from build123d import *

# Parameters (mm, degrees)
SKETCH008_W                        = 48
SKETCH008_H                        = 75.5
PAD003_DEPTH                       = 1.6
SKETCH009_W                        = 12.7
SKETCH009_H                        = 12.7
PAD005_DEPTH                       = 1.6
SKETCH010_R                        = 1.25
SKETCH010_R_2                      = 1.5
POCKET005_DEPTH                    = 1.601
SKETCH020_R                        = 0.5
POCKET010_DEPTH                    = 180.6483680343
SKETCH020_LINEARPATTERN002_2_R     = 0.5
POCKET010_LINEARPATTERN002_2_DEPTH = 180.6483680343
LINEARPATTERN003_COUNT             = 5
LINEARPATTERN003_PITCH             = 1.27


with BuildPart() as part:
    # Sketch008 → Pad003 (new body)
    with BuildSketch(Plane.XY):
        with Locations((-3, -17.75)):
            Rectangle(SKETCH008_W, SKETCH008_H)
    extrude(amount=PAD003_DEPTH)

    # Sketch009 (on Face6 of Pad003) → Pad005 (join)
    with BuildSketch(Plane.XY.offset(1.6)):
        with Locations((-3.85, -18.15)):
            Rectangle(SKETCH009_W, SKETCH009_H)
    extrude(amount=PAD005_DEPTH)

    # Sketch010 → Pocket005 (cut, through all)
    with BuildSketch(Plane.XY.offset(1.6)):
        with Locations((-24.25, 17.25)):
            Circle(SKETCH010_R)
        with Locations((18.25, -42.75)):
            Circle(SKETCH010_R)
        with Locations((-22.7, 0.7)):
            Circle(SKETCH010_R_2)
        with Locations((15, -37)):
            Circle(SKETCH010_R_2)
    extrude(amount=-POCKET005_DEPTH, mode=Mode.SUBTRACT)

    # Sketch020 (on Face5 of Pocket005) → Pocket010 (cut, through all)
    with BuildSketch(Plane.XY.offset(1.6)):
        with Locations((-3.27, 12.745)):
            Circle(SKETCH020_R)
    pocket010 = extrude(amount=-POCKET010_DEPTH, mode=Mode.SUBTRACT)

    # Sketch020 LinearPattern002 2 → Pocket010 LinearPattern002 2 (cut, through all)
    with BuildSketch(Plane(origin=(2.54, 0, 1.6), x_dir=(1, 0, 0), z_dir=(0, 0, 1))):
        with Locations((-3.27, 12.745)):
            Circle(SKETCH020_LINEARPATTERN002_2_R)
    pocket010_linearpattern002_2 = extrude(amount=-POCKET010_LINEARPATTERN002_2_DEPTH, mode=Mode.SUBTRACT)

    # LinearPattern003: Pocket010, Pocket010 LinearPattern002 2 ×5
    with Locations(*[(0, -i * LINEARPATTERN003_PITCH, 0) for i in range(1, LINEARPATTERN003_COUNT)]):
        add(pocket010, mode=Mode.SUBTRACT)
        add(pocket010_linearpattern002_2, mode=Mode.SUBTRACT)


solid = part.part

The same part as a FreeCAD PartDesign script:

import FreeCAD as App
import Part
import Sketcher
from FreeCAD import Vector
Q = App.Units.Quantity

doc = App.newDocument("Part")
body = doc.addObject("PartDesign::Body", "Body")

sketch1 = body.newObject("Sketcher::SketchObject", "Sketch")
sketch1.AttachmentSupport = (doc.getObject("XY_Plane"), [""])
sketch1.MapMode = "FlatFace"
sketch1.addGeometry(Part.LineSegment(Vector(-27, 20, 0), Vector(-27, -56, 0)), False)
sketch1.addGeometry(Part.LineSegment(Vector(-27, -56, 0), Vector(21, -56, 0)), False)
sketch1.addGeometry(Part.LineSegment(Vector(21, -56, 0), Vector(21, 20, 0)), False)
sketch1.addGeometry(Part.LineSegment(Vector(21, 20, 0), Vector(-27, 20, 0)), False)
sketch1.addConstraint(Sketcher.Constraint("Coincident", 0, 2, 1, 1))
sketch1.addConstraint(Sketcher.Constraint("Coincident", 1, 2, 2, 1))
sketch1.addConstraint(Sketcher.Constraint("Coincident", 2, 2, 3, 1))
sketch1.addConstraint(Sketcher.Constraint("Coincident", 3, 2, 0, 1))
sketch1.addConstraint(Sketcher.Constraint("Vertical", 0))
sketch1.addConstraint(Sketcher.Constraint("Horizontal", 1))
sketch1.addConstraint(Sketcher.Constraint("Vertical", 2))
sketch1.addConstraint(Sketcher.Constraint("Horizontal", 3))
sketch1.addConstraint(Sketcher.Constraint("DistanceX", 1, 1, 1, 2, Q("48 mm")))
sketch1.addConstraint(Sketcher.Constraint("DistanceY", 0, 2, 0, 1, Q("75.5 mm")))
sketch1.addConstraint(Sketcher.Constraint("DistanceX", 0, 2, -1, 1, Q("27 mm")))
sketch1.addConstraint(Sketcher.Constraint("DistanceY", -1, 1, 2, 2, Q("20 mm")))
pad1 = body.newObject("PartDesign::Pad", "Pad")
pad1.Profile = sketch1
pad1.Length = 1.6

sketch2 = body.newObject("Sketcher::SketchObject", "Sketch001")
sketch2.AttachmentSupport = (doc.getObject("XY_Plane"), [""])
sketch2.MapMode = "FlatFace"
sketch2.AttachmentOffset = App.Placement(Vector(0, 0, 1.6), App.Rotation())
sketch2.addGeometry(Part.LineSegment(Vector(-10, -12, 0), Vector(-10, -24, 0)), False)
sketch2.addGeometry(Part.LineSegment(Vector(-10, -24, 0), Vector(2, -24, 0)), False)
sketch2.addGeometry(Part.LineSegment(Vector(2, -24, 0), Vector(2, -12, 0)), False)
sketch2.addGeometry(Part.LineSegment(Vector(2, -12, 0), Vector(-10, -12, 0)), False)
sketch2.addConstraint(Sketcher.Constraint("Coincident", 0, 2, 1, 1))
sketch2.addConstraint(Sketcher.Constraint("Coincident", 1, 2, 2, 1))
sketch2.addConstraint(Sketcher.Constraint("Coincident", 2, 2, 3, 1))
sketch2.addConstraint(Sketcher.Constraint("Coincident", 3, 2, 0, 1))
sketch2.addConstraint(Sketcher.Constraint("Vertical", 0))
sketch2.addConstraint(Sketcher.Constraint("Horizontal", 1))
sketch2.addConstraint(Sketcher.Constraint("Vertical", 2))
sketch2.addConstraint(Sketcher.Constraint("Horizontal", 3))
sketch2.addConstraint(Sketcher.Constraint("Equal", 3, 0))
sketch2.addConstraint(Sketcher.Constraint("DistanceX", 1, 1, 1, 2, Q("12.7 mm")))
sketch2.addConstraint(Sketcher.Constraint("DistanceX", 0, 2, -1, 1, Q("10.2 mm")))
sketch2.addConstraint(Sketcher.Constraint("DistanceY", 0, 2, -1, 1, Q("24.5 mm")))
pad2 = body.newObject("PartDesign::Pad", "Pad001")
pad2.Profile = sketch2
pad2.Length = 1.6

sketch3 = body.newObject("Sketcher::SketchObject", "Sketch002")
sketch3.AttachmentSupport = (doc.getObject("XY_Plane"), [""])
sketch3.MapMode = "FlatFace"
sketch3.AttachmentOffset = App.Placement(Vector(0, 0, 1.6), App.Rotation())
sketch3.addGeometry(Part.Circle(Vector(-24.2, 17.2, 0), Vector(0, 0, 1), 1.2), False)
sketch3.addGeometry(Part.Circle(Vector(18.2, -42.8, 0), Vector(0, 0, 1), 1.2), False)
sketch3.addGeometry(Part.Circle(Vector(-22.7, 0.7, 0), Vector(0, 0, 1), 1.5), False)
sketch3.addGeometry(Part.Circle(Vector(15, -37, 0), Vector(0, 0, 1), 1.5), False)
sketch3.addConstraint(Sketcher.Constraint("Equal", 0, 1))
sketch3.addConstraint(Sketcher.Constraint("Equal", 2, 3))
sketch3.addConstraint(Sketcher.Constraint("Diameter", 2, Q("3 mm")))
sketch3.addConstraint(Sketcher.Constraint("Diameter", 0, Q("2.5 mm")))
sketch3.addConstraint(Sketcher.Constraint("DistanceX", -1, 1, 3, 3, Q("15 mm")))
sketch3.addConstraint(Sketcher.Constraint("DistanceY", 3, 3, -1, 1, Q("37 mm")))
sketch3.addConstraint(Sketcher.Constraint("DistanceY", 1, 3, 0, 3, Q("60 mm")))
sketch3.addConstraint(Sketcher.Constraint("DistanceX", 2, 3, -1, 1, Q("22.7 mm")))
sketch3.addConstraint(Sketcher.Constraint("DistanceY", -1, 1, 2, 3, Q("0.7 mm")))
sketch3.addConstraint(Sketcher.Constraint("DistanceX", 0, 3, 1, 3, Q("42.5 mm")))
sketch3.addConstraint(Sketcher.Constraint("DistanceX", 0, 3, -1, 1, Q("24.25 mm")))
sketch3.addConstraint(Sketcher.Constraint("DistanceY", -1, 1, 0, 3, Q("17.25 mm")))
pocket1 = body.newObject("PartDesign::Pocket", "Pocket")
pocket1.Profile = sketch3
pocket1.Type = "ThroughAll"

sketch4 = body.newObject("Sketcher::SketchObject", "Sketch003")
sketch4.AttachmentSupport = (doc.getObject("XY_Plane"), [""])
sketch4.MapMode = "FlatFace"
sketch4.AttachmentOffset = App.Placement(Vector(0, 0, 1.6), App.Rotation())
sketch4.addGeometry(Part.Circle(Vector(-3.3, 12.7, 0), Vector(0, 0, 1), 0.5), False)
sketch4.addConstraint(Sketcher.Constraint("Diameter", 0, Q("1 mm")))
sketch4.addConstraint(Sketcher.Constraint("DistanceX", 0, 3, -1, 1, Q("3.27 mm")))
sketch4.addConstraint(Sketcher.Constraint("DistanceY", -1, 1, 0, 3, Q("12.745 mm")))
pocket2 = body.newObject("PartDesign::Pocket", "Pocket001")
pocket2.Profile = sketch4
pocket2.Type = "ThroughAll"

sketch5 = body.newObject("Sketcher::SketchObject", "Sketch004")
sketch5.AttachmentSupport = (doc.getObject("XY_Plane"), [""])
sketch5.MapMode = "FlatFace"
sketch5.AttachmentOffset = App.Placement(Vector(0, 0, 1.6), App.Rotation())
sketch5.addGeometry(Part.Circle(Vector(-0.7, 12.7, 0), Vector(0, 0, 1), 0.5), False)
sketch5.addConstraint(Sketcher.Constraint("Diameter", 0, Q("1 mm")))
sketch5.addConstraint(Sketcher.Constraint("DistanceX", 0, 3, -1, 1, Q("0.73 mm")))
sketch5.addConstraint(Sketcher.Constraint("DistanceY", -1, 1, 0, 3, Q("12.745 mm")))
pocket3 = body.newObject("PartDesign::Pocket", "Pocket002")
pocket3.Profile = sketch5
pocket3.Type = "ThroughAll"
doc.recompute()

linearpattern = body.newObject("PartDesign::LinearPattern", "LinearPattern")
linearpattern.Originals = [pocket2, pocket3]
linearpattern.Direction = (doc.getObject("Y_Axis"), [""])
linearpattern.Mode = "offset"
linearpattern.Offset = 1.27
linearpattern.Occurrences = 5
linearpattern.Reversed = True
body.Tip = linearpattern

doc.recompute()
